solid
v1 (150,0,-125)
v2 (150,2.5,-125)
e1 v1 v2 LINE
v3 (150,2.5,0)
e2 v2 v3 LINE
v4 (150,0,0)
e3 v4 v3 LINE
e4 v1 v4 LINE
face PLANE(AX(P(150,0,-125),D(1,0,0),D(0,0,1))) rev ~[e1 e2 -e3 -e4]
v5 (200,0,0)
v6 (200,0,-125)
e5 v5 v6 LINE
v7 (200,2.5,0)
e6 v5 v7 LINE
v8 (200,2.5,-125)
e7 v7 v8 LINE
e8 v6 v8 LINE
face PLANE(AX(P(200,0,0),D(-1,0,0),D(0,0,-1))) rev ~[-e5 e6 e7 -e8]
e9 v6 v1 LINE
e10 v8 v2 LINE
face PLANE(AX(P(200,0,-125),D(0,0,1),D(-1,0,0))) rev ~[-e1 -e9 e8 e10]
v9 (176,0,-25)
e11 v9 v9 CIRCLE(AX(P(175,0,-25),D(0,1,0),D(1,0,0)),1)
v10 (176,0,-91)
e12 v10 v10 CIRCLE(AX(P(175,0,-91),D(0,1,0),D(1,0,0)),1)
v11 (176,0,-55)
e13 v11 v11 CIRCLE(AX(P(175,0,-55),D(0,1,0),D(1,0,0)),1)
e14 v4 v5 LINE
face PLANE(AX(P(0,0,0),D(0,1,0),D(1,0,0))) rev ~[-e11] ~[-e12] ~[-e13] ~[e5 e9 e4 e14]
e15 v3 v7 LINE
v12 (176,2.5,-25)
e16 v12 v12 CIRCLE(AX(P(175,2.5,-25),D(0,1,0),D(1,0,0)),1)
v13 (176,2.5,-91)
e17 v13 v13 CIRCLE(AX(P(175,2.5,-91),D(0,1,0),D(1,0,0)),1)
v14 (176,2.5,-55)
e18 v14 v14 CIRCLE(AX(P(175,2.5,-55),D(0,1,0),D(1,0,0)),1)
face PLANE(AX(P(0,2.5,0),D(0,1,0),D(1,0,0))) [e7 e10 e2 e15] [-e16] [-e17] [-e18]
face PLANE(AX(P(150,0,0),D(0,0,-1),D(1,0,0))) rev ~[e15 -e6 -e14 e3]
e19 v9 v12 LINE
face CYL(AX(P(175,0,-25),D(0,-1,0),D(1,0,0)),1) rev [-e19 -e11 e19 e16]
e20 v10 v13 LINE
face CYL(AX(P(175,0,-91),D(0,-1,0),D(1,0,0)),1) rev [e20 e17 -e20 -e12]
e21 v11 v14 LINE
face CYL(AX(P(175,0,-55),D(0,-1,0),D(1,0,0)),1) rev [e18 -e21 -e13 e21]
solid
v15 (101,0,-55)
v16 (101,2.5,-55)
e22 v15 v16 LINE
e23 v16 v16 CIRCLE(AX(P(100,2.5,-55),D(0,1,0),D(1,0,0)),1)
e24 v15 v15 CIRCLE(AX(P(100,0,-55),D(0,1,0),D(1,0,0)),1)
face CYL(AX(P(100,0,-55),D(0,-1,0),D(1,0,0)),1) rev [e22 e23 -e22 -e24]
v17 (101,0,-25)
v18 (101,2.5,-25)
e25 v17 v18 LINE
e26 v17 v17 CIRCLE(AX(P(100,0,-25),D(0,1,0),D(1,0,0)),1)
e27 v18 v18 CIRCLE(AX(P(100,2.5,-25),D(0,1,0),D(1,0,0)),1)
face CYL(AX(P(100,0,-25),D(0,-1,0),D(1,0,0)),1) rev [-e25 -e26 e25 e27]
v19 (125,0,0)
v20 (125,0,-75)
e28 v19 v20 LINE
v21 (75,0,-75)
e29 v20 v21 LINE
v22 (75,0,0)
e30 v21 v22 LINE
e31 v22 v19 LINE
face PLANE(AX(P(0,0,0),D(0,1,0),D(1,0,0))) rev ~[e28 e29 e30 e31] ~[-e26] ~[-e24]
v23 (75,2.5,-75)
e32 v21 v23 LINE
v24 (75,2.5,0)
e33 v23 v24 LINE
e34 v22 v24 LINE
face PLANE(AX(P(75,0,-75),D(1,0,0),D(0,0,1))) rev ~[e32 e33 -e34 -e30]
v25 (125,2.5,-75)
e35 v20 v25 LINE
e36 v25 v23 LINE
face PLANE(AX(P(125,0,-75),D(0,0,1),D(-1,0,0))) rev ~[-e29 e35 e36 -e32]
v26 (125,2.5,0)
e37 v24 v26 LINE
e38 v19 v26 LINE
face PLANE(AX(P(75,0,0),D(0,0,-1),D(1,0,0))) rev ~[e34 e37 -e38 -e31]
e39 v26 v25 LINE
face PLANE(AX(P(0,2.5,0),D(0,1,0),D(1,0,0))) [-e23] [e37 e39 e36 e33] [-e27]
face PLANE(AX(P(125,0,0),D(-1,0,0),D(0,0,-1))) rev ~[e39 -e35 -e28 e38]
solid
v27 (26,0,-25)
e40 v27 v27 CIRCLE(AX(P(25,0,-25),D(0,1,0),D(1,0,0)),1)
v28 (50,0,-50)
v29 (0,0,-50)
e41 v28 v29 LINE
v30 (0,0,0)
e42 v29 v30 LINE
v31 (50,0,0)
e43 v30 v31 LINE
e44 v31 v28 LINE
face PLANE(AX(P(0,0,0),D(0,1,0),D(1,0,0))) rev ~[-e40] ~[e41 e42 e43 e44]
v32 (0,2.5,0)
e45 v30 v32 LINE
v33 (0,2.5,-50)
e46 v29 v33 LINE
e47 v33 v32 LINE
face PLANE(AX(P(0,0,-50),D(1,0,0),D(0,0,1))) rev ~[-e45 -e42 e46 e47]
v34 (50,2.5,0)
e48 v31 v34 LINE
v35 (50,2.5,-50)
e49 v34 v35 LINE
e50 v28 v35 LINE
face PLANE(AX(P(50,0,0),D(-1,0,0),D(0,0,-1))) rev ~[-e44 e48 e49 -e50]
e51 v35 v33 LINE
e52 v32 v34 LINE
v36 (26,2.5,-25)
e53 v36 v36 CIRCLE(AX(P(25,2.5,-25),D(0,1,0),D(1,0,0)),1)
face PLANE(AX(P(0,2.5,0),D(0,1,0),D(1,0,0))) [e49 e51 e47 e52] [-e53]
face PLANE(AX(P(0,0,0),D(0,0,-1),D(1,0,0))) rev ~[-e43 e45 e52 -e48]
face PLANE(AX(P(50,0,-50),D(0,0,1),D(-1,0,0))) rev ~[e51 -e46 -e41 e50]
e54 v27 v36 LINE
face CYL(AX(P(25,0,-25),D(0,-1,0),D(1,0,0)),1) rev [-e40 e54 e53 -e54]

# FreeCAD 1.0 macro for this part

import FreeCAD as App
import Part
import Sketcher

V = App.Vector

doc = App.newDocument("Part")
body = doc.addObject("PartDesign::Body", "Body")
body.AllowCompound = True

sketch1 = body.newObject("Sketcher::SketchObject", "Sketch")
sketch1.AttachmentSupport = (doc.getObject("XZ_Plane"), [""])
sketch1.MapMode = "FlatFace"
sketch1.addGeometry(Part.LineSegment(V(0, -50, 0), V(0, 0, 0)), False)
sketch1.addGeometry(Part.LineSegment(V(0, 0, 0), V(50, 0, 0)), False)
sketch1.addGeometry(Part.LineSegment(V(50, 0, 0), V(50, -50, 0)), False)
sketch1.addGeometry(Part.LineSegment(V(50, -50, 0), V(0, -50, 0)), False)
sketch1.addGeometry(Part.Circle(V(25, -25, 0), V(0, 0, 1), 1), False)
sketch1.addGeometry(Part.LineSegment(V(75, -75, 0), V(75, 0, 0)), False)
sketch1.addGeometry(Part.LineSegment(V(75, 0, 0), V(125, 0, 0)), False)
sketch1.addGeometry(Part.LineSegment(V(125, 0, 0), V(125, -75, 0)), False)
sketch1.addGeometry(Part.LineSegment(V(125, -75, 0), V(75, -75, 0)), False)
sketch1.addGeometry(Part.Circle(V(100, -25, 0), V(0, 0, 1), 1), False)
sketch1.addGeometry(Part.Circle(V(100, -55, 0), V(0, 0, 1), 1), False)
sketch1.addGeometry(Part.LineSegment(V(150, -125, 0), V(150, 0, 0)), False)
sketch1.addGeometry(Part.LineSegment(V(150, 0, 0), V(200, 0, 0)), False)
sketch1.addGeometry(Part.LineSegment(V(200, 0, 0), V(200, -125, 0)), False)
sketch1.addGeometry(Part.LineSegment(V(200, -125, 0), V(150, -125, 0)), False)
sketch1.addGeometry(Part.Circle(V(175, -25, 0), V(0, 0, 1), 1), False)
sketch1.addGeometry(Part.Circle(V(175, -55, 0), V(0, 0, 1), 1), False)
sketch1.addGeometry(Part.Circle(V(175, -91, 0), V(0, 0, 1), 1), False)
sketch1.addConstraint(Sketcher.Constraint("Coincident", 0, 2, 1, 1))
sketch1.addConstraint(Sketcher.Constraint("Coincident", 1, 2, 2, 1))
sketch1.addConstraint(Sketcher.Constraint("Coincident", 2, 2, 3, 1))
sketch1.addConstraint(Sketcher.Constraint("Coincident", 3, 2, 0, 1))
sketch1.addConstraint(Sketcher.Constraint("Coincident", 5, 2, 6, 1))
sketch1.addConstraint(Sketcher.Constraint("Coincident", 6, 2, 7, 1))
sketch1.addConstraint(Sketcher.Constraint("Coincident", 7, 2, 8, 1))
sketch1.addConstraint(Sketcher.Constraint("Coincident", 8, 2, 5, 1))
sketch1.addConstraint(Sketcher.Constraint("Coincident", 11, 2, 12, 1))
sketch1.addConstraint(Sketcher.Constraint("Coincident", 12, 2, 13, 1))
sketch1.addConstraint(Sketcher.Constraint("Coincident", 13, 2, 14, 1))
sketch1.addConstraint(Sketcher.Constraint("Coincident", 14, 2, 11, 1))
sketch1.addConstraint(Sketcher.Constraint("Vertical", 0))
sketch1.addConstraint(Sketcher.Constraint("Horizontal", 1))
sketch1.addConstraint(Sketcher.Constraint("Vertical", 2))
sketch1.addConstraint(Sketcher.Constraint("Horizontal", 3))
sketch1.addConstraint(Sketcher.Constraint("Vertical", 5))
sketch1.addConstraint(Sketcher.Constraint("Horizontal", 6))
sketch1.addConstraint(Sketcher.Constraint("Vertical", 7))
sketch1.addConstraint(Sketcher.Constraint("Horizontal", 8))
sketch1.addConstraint(Sketcher.Constraint("Vertical", 11))
sketch1.addConstraint(Sketcher.Constraint("Horizontal", 12))
sketch1.addConstraint(Sketcher.Constraint("Vertical", 13))
sketch1.addConstraint(Sketcher.Constraint("Horizontal", 14))
sketch1.addConstraint(Sketcher.Constraint("Coincident", 0, 2, -1, 1))
sketch1.addConstraint(Sketcher.Constraint("Equal", 4, 9))
sketch1.addConstraint(Sketcher.Constraint("Equal", 9, 10))
sketch1.addConstraint(Sketcher.Constraint("Equal", 10, 15))
sketch1.addConstraint(Sketcher.Constraint("Equal", 15, 16))
sketch1.addConstraint(Sketcher.Constraint("Equal", 16, 17))
sketch1.addConstraint(Sketcher.Constraint("PointOnObject", 5, 2, -1))
sketch1.addConstraint(Sketcher.Constraint("PointOnObject", 11, 2, -1))
sketch1.addConstraint(Sketcher.Constraint("Horizontal", 4, 3, 9, 3))
sketch1.addConstraint(Sketcher.Constraint("Horizontal", 9, 3, 15, 3))
sketch1.addConstraint(Sketcher.Constraint("Horizontal", 10, 3, 16, 3))
sketch1.addConstraint(Sketcher.Constraint("Vertical", 9, 3, 10, 3))
sketch1.addConstraint(Sketcher.Constraint("Vertical", 15, 3, 16, 3))
sketch1.addConstraint(Sketcher.Constraint("Vertical", 16, 3, 17, 3))
sketch1.addConstraint(Sketcher.Constraint("Equal", 3, 6))
sketch1.addConstraint(Sketcher.Constraint("Equal", 8, 12))
sketch1.addConstraint(Sketcher.Constraint("Equal", 14, 0))
sketch1.addConstraint(Sketcher.Constraint("Diameter", 4, 2.0))
sketch1.addConstraint(Sketcher.Constraint("DistanceY", 17, 3, 16, 3, 36.0))
sketch1.addConstraint(Sketcher.Constraint("DistanceX", 1, 1, 1, 2, 50.0))
sketch1.addConstraint(Sketcher.Constraint("DistanceY", 5, 1, 5, 2, 75.0))
sketch1.addConstraint(Sketcher.Constraint("DistanceY", 11, 1, 11, 2, 125.0))
sketch1.addConstraint(Sketcher.Constraint("DistanceX", -1, 1, 4, 3, 25.0))
sketch1.addConstraint(Sketcher.Constraint("DistanceY", 4, 3, -1, 1, 25.0))
sketch1.addConstraint(Sketcher.Constraint("DistanceX", -1, 1, 9, 3, 100.0))
sketch1.addConstraint(Sketcher.Constraint("DistanceY", 10, 3, -1, 1, 55.0))
sketch1.addConstraint(Sketcher.Constraint("DistanceX", -1, 1, 15, 3, 175.0))
sketch1.addConstraint(Sketcher.Constraint("DistanceX", -1, 1, 5, 2, 75.0))
sketch1.addConstraint(Sketcher.Constraint("DistanceX", -1, 1, 11, 2, 150.0))
pad1 = body.newObject("PartDesign::Pad", "Pad")
pad1.Profile = sketch1
pad1.Length = 2.5
pad1.Reversed = True

doc.recompute()
